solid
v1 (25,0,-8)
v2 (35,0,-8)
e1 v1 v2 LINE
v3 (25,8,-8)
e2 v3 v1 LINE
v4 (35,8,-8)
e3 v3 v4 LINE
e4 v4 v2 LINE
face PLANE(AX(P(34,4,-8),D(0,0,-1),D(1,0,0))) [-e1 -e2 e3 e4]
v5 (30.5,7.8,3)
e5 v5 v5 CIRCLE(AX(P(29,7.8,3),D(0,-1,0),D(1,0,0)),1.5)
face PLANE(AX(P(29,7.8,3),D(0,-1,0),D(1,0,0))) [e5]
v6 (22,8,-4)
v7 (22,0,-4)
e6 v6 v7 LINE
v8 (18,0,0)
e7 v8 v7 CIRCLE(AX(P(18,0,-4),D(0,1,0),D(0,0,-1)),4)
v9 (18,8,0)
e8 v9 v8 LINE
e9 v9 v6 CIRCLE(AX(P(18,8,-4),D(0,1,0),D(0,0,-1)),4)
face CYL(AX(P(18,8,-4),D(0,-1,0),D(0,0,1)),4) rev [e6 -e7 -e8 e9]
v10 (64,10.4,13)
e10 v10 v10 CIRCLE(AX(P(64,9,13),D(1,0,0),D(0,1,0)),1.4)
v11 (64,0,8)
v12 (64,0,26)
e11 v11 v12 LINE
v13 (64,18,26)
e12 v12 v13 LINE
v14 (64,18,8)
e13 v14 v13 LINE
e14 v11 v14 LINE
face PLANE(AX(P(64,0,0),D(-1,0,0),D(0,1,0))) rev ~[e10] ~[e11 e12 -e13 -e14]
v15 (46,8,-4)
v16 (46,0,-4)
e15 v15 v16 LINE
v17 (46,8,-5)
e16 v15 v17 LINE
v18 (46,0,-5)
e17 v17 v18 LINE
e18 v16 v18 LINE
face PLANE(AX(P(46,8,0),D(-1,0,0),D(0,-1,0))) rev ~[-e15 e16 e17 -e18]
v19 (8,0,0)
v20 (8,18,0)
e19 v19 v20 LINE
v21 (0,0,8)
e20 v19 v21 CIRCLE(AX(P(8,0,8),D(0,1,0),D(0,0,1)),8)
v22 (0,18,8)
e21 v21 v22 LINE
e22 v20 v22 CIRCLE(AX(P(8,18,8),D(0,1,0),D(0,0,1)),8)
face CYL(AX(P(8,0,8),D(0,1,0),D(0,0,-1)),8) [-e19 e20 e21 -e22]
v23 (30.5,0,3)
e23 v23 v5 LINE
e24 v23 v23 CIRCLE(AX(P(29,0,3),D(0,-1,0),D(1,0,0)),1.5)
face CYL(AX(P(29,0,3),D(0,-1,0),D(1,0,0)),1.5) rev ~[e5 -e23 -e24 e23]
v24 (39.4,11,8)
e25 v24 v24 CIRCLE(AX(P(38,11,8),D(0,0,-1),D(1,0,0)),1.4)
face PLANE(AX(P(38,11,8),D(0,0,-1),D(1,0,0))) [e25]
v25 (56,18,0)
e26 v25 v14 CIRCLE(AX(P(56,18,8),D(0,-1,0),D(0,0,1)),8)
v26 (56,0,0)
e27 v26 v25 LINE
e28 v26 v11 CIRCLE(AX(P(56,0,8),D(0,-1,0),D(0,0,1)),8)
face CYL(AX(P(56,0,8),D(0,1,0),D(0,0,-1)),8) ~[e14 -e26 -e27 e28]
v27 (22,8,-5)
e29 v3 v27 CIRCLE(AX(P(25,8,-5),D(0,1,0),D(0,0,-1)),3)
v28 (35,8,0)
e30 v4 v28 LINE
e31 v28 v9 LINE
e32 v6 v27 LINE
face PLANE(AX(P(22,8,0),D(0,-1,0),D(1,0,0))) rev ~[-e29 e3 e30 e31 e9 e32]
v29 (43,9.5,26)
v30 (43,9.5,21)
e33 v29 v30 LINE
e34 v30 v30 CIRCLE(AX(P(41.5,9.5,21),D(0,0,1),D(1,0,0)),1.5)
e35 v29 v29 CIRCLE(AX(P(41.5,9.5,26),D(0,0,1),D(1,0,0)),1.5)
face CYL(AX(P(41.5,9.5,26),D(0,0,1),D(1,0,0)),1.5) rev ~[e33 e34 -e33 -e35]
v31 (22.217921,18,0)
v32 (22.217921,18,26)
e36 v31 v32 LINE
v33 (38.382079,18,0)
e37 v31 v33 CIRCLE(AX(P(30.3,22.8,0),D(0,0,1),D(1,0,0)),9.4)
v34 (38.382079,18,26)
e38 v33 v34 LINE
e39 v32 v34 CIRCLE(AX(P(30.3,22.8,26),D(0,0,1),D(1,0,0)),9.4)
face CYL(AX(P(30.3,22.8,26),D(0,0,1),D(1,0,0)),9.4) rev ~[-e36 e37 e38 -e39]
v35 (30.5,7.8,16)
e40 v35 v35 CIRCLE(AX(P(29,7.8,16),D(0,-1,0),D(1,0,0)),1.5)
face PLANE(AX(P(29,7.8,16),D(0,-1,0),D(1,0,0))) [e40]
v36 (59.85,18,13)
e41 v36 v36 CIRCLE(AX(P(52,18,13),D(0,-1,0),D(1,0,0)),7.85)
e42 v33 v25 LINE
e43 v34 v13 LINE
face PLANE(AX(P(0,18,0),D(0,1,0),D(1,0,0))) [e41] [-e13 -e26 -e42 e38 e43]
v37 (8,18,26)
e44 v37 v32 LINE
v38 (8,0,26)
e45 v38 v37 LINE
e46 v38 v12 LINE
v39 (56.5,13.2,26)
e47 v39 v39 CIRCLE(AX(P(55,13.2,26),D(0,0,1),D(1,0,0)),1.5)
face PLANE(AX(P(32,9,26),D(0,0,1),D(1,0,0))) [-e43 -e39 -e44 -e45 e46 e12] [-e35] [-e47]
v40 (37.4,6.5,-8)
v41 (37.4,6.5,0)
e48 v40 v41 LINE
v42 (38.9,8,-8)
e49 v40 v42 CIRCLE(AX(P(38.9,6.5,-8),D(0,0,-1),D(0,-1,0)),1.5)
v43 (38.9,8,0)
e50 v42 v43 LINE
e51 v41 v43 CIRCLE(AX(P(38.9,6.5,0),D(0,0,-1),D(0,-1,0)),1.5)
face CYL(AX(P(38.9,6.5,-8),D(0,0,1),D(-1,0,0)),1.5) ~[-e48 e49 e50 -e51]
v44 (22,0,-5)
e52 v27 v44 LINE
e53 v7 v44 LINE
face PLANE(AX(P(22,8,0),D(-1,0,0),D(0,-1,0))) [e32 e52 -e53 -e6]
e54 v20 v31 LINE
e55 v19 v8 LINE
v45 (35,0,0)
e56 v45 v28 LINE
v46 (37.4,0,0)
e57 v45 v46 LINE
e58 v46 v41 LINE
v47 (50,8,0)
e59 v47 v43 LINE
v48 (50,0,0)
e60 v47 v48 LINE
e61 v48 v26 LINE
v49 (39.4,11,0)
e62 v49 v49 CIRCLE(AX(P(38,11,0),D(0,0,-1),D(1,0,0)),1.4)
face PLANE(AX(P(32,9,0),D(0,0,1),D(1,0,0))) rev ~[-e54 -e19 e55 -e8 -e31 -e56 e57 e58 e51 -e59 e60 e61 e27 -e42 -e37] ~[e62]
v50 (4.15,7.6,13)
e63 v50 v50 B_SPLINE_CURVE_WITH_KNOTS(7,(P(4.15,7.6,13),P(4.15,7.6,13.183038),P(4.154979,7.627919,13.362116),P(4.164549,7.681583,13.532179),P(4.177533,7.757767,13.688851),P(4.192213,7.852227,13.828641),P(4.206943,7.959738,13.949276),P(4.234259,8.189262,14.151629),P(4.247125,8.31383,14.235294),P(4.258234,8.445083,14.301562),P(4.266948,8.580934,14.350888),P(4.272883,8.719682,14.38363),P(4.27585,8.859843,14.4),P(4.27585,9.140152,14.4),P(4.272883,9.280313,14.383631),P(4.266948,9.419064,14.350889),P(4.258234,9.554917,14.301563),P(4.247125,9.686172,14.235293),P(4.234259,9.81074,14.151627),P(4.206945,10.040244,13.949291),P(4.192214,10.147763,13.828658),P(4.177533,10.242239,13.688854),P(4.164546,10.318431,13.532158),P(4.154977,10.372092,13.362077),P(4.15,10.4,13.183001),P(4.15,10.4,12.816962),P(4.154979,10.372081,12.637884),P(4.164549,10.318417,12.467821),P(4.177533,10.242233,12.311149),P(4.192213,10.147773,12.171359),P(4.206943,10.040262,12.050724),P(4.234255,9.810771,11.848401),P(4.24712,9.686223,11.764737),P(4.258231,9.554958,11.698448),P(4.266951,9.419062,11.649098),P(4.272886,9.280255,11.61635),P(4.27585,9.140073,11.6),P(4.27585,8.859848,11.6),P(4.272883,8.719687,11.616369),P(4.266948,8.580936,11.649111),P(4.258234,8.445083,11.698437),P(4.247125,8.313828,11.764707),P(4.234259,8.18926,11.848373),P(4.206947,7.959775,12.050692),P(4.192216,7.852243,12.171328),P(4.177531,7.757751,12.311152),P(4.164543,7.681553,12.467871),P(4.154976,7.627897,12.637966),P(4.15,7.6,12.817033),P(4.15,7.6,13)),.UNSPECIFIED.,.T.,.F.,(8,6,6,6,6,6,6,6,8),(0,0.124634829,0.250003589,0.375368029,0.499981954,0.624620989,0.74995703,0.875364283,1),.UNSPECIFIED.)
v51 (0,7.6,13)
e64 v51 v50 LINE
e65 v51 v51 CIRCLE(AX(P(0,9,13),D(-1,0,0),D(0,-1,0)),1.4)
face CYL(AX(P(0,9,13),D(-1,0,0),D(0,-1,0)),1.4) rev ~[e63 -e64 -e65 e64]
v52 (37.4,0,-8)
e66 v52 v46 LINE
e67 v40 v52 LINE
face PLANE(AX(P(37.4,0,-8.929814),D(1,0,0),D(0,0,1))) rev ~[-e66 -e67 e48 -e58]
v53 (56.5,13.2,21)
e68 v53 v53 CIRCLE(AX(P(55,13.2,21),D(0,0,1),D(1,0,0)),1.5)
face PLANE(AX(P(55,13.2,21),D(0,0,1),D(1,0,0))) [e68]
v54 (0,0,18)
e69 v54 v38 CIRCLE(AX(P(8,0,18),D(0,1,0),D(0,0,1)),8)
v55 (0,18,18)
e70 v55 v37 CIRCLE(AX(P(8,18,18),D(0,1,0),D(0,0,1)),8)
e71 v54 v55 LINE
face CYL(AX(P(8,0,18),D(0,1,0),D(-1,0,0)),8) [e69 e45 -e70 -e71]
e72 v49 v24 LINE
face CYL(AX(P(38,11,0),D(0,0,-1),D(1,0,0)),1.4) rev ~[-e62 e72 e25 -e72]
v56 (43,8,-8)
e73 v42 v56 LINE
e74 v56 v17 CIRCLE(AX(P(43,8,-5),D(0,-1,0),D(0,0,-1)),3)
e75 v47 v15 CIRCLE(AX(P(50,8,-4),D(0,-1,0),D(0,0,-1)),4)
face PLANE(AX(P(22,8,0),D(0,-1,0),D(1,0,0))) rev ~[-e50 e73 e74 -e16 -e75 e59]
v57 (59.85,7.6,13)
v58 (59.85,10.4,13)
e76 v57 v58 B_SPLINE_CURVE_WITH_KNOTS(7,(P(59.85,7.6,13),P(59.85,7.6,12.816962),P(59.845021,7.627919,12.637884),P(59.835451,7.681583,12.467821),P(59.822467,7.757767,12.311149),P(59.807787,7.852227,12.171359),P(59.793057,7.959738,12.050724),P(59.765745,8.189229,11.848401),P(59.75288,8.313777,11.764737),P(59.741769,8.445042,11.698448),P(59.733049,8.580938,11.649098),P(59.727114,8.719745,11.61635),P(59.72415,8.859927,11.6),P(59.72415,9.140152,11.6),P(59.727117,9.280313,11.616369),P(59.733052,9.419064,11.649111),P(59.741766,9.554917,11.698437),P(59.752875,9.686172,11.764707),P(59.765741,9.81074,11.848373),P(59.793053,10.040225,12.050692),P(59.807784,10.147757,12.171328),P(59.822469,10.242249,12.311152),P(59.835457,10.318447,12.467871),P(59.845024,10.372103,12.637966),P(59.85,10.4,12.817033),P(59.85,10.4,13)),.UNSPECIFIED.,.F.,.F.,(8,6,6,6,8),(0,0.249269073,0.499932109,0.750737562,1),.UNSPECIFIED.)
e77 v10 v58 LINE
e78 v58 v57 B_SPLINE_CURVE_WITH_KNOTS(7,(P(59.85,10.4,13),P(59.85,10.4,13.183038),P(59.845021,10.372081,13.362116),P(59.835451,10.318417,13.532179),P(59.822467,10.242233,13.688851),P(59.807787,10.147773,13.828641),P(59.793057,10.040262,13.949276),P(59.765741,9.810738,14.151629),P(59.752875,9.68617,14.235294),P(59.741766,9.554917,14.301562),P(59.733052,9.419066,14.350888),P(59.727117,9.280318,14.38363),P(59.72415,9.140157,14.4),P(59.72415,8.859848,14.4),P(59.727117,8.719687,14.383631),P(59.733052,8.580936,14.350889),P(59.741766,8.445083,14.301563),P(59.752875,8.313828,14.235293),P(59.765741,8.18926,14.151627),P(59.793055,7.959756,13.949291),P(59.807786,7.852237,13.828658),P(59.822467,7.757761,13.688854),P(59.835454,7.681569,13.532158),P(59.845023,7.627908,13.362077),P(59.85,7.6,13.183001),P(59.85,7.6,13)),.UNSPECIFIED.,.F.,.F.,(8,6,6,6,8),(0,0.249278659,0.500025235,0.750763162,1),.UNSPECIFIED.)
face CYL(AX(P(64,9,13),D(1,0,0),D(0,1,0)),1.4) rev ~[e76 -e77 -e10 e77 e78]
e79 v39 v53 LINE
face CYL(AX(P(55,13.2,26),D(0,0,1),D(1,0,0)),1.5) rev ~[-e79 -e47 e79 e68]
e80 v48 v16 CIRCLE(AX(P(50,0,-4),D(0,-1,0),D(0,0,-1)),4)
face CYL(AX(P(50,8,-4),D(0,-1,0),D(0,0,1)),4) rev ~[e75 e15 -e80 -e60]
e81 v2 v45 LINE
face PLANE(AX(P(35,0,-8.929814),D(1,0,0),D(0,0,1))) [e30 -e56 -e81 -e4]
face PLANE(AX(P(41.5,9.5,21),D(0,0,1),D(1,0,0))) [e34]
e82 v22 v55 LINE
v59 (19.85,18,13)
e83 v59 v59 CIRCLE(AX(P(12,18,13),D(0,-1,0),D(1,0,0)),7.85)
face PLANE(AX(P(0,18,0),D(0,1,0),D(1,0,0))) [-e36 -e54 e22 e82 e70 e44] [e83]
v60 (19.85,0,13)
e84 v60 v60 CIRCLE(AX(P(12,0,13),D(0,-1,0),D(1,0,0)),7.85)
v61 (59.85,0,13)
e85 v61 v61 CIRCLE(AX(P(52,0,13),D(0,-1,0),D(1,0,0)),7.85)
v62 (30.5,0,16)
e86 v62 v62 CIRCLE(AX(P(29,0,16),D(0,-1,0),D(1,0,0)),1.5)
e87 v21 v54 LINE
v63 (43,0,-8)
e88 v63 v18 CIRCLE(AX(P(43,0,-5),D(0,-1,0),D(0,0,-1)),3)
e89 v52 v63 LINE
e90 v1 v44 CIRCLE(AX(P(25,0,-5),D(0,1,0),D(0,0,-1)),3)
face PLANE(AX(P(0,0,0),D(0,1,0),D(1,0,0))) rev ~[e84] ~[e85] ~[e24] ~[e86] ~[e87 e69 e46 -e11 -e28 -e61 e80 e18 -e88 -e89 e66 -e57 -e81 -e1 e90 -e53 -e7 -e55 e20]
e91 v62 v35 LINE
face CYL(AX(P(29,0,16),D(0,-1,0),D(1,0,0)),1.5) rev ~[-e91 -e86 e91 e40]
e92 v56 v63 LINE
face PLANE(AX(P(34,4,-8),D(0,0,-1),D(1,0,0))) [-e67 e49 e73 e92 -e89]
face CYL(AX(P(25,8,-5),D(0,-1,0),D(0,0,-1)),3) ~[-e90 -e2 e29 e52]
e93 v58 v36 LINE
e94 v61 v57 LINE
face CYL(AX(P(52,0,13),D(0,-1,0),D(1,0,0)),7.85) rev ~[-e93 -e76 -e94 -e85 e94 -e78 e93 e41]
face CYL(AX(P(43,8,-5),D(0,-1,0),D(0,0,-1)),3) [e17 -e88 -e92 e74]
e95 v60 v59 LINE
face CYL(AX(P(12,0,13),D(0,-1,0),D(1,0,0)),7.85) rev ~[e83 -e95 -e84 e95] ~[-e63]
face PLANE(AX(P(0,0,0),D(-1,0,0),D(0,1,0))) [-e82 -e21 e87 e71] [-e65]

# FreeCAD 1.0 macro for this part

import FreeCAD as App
import Part
import Sketcher

V = App.Vector
Q = App.Units.Quantity


def edges_at(feature, points):
    """Names of the edges that pass closest to the given points."""
    edges = feature.Shape.Edges
    near = lambda p: min(range(len(edges)), key=lambda i: edges[i].distToShape(Part.Vertex(*p))[0])
    return sorted({f"Edge{near(p) + 1}" for p in points})

doc = App.newDocument("Part")
params = doc.addObject("Spreadsheet::Sheet", "Params")
for row, (alias, value) in enumerate([
    ("sketch1_width", "64 mm"),
    ("sketch1_height", "18 mm"),
    ("pad1_length", "26 mm"),
    ("sketch2_diameter", "15.7 mm"),
    ("sketch3_width", "24 mm"),
    ("sketch3_height", "8 mm"),
    ("pad2_length", "8 mm"),
    ("sketch4_diameter", "18.8 mm"),
    ("sketch5_diameter", "3 mm"),
    ("pocket3_length", "5 mm"),
    ("sketch6_diameter", "2.8 mm"),
    ("pocket4_length", "5 mm"),
    ("sketch7_diameter", "2.8 mm"),
    ("pocket5_length", "5 mm"),
    ("sketch8_diameter", "2.8 mm"),
    ("pocket6_length", "8 mm"),
    ("sketch9_diameter", "3 mm"),
    ("pocket7_length", "7.8 mm"),
    ("sketch10_width", "2.4 mm"),
    ("pocket8_length", "8 mm"),
    ("fillet_radius", "4 mm"),
    ("fillet2_radius", "3 mm"),
    ("fillet3_radius", "1.5 mm"),
    ("fillet4_radius", "8 mm"),
], start=1):
    params.set(f"A{row}", alias)
    params.set(f"B{row}", "=" + value)
    params.setAlias(f"B{row}", alias)

body = doc.addObject("PartDesign::Body", "Body")

sketch1 = body.newObject("Sketcher::SketchObject", "Sketch")
sketch1.AttachmentSupport = (doc.getObject("XY_Plane"), [""])
sketch1.MapMode = "FlatFace"
sketch1.addGeometry([
    Part.LineSegment(V(0, 18, 0), V(0, 0, 0)),
    Part.LineSegment(V(0, 0, 0), V(64, 0, 0)),
    Part.LineSegment(V(64, 0, 0), V(64, 18, 0)),
    Part.LineSegment(V(64, 18, 0), V(0, 18, 0)),
], False)
sketch1.addConstraint([
    Sketcher.Constraint("Coincident", 0, 2, 1, 1),
    Sketcher.Constraint("Coincident", 1, 2, 2, 1),
    Sketcher.Constraint("Coincident", 2, 2, 3, 1),
    Sketcher.Constraint("Coincident", 3, 2, 0, 1),
    Sketcher.Constraint("Vertical", 0),
    Sketcher.Constraint("Horizontal", 1),
    Sketcher.Constraint("Vertical", 2),
    Sketcher.Constraint("Horizontal", 3),
    Sketcher.Constraint("Coincident", 0, 2, -1, 1),
    Sketcher.Constraint("DistanceX", 1, 1, 1, 2, Q("64 mm")),
    Sketcher.Constraint("DistanceY", 0, 2, 0, 1, Q("18 mm")),
])
sketch1.setExpression("Constraints[9]", "Params.sketch1_width")
sketch1.setExpression("Constraints[10]", "Params.sketch1_height")
pad1 = body.newObject("PartDesign::Pad", "Pad")
pad1.Profile = sketch1
pad1.setExpression("Length", "Params.pad1_length")

sketch2 = body.newObject("Sketcher::SketchObject", "Sketch001")
sketch2.AttachmentSupport = (doc.getObject("XZ_Plane"), [""])
sketch2.MapMode = "FlatFace"
sketch2.addGeometry([
    Part.Circle(V(12, 13, 0), V(0, 0, 1), 8),
    Part.Circle(V(52, 13, 0), V(0, 0, 1), 8),
], False)
sketch2.addConstraint([
    Sketcher.Constraint("Equal", 0, 1),
    Sketcher.Constraint("Horizontal", 0, 3, 1, 3),
    Sketcher.Constraint("Diameter", 0, Q("15.7 mm")),
    Sketcher.Constraint("DistanceX", -1, 1, 0, 3, Q("12 mm")),
    Sketcher.Constraint("DistanceY", -1, 1, 0, 3, Q("13 mm")),
    Sketcher.Constraint("DistanceX", -1, 1, 1, 3, Q("52 mm")),
])
sketch2.setExpression("Constraints[2]", "Params.sketch2_diameter")
pocket1 = body.newObject("PartDesign::Pocket", "Pocket")
pocket1.Profile = sketch2
pocket1.Type = "ThroughAll"

sketch3 = body.newObject("Sketcher::SketchObject", "Sketch002")
sketch3.AttachmentSupport = (doc.getObject("XY_Plane"), [""])
sketch3.MapMode = "FlatFace"
sketch3.addGeometry([
    Part.LineSegment(V(22, 0, 0), V(22, 8, 0)),
    Part.LineSegment(V(22, 8, 0), V(46, 8, 0)),
    Part.LineSegment(V(46, 8, 0), V(46, 0, 0)),
    Part.LineSegment(V(46, 0, 0), V(22, 0, 0)),
], False)
sketch3.addConstraint([
    Sketcher.Constraint("Coincident", 0, 2, 1, 1),
    Sketcher.Constraint("Coincident", 1, 2, 2, 1),
    Sketcher.Constraint("Coincident", 2, 2, 3, 1),
    Sketcher.Constraint("Coincident", 3, 2, 0, 1),
    Sketcher.Constraint("Vertical", 0),
    Sketcher.Constraint("Horizontal", 1),
    Sketcher.Constraint("Vertical", 2),
    Sketcher.Constraint("Horizontal", 3),
    Sketcher.Constraint("PointOnObject", 2, 2, -1),
    Sketcher.Constraint("DistanceX", 1, 1, 1, 2, Q("24 mm")),
    Sketcher.Constraint("DistanceY", 0, 1, 0, 2, Q("8 mm")),
    Sketcher.Constraint("DistanceX", -1, 1, 0, 2, Q("22 mm")),
])
sketch3.setExpression("Constraints[9]", "Params.sketch3_width")
sketch3.setExpression("Constraints[10]", "Params.sketch3_height")
pad2 = body.newObject("PartDesign::Pad", "Pad001")
pad2.Profile = sketch3
pad2.setExpression("Length", "Params.pad2_length")
pad2.Reversed = True

sketch4 = body.newObject("Sketcher::SketchObject", "Sketch003")
sketch4.AttachmentSupport = (doc.getObject("XY_Plane"), [""])
sketch4.MapMode = "FlatFace"
sketch4.AttachmentOffset = App.Placement(V(0, 0, 26), App.Rotation())
sketch4.addGeometry(Part.Circle(V(30, 23, 0), V(0, 0, 1), 9), False)
sketch4.addConstraint([
    Sketcher.Constraint("Diameter", 0, Q("18.8 mm")),
    Sketcher.Constraint("DistanceX", -1, 1, 0, 3, Q("30.3 mm")),
    Sketcher.Constraint("DistanceY", -1, 1, 0, 3, Q("22.8 mm")),
])
sketch4.setExpression("Constraints[0]", "Params.sketch4_diameter")
pocket2 = body.newObject("PartDesign::Pocket", "Pocket001")
pocket2.Profile = sketch4
pocket2.Type = "ThroughAll"

sketch5 = body.newObject("Sketcher::SketchObject", "Sketch004")
sketch5.AttachmentSupport = (doc.getObject("XY_Plane"), [""])
sketch5.MapMode = "FlatFace"
sketch5.AttachmentOffset = App.Placement(V(0, 0, 26), App.Rotation())
sketch5.addGeometry([
    Part.Circle(V(41.5, 9.5, 0), V(0, 0, 1), 1.5),
    Part.Circle(V(55, 13.2, 0), V(0, 0, 1), 1.5),
], False)
sketch5.addConstraint([
    Sketcher.Constraint("Equal", 0, 1),
    Sketcher.Constraint("Diameter", 0, Q("3 mm")),
    Sketcher.Constraint("DistanceX", -1, 1, 1, 3, Q("55 mm")),
    Sketcher.Constraint("DistanceX", -1, 1, 0, 3, Q("41.5 mm")),
    Sketcher.Constraint("DistanceY", -1, 1, 0, 3, Q("9.5 mm")),
    Sketcher.Constraint("DistanceY", -1, 1, 1, 3, Q("13.2 mm")),
])
sketch5.setExpression("Constraints[1]", "Params.sketch5_diameter")
pocket3 = body.newObject("PartDesign::Pocket", "Pocket002")
pocket3.Profile = sketch5
pocket3.setExpression("Length", "Params.pocket3_length")

sketch6 = body.newObject("Sketcher::SketchObject", "Sketch005")
sketch6.AttachmentSupport = (doc.getObject("YZ_Plane"), [""])
sketch6.MapMode = "FlatFace"
sketch6.AttachmentOffset = App.Placement(V(0, 0, 64), App.Rotation())
sketch6.addGeometry(Part.Circle(V(9, 13, 0), V(0, 0, 1), 1.4), False)
sketch6.addConstraint([
    Sketcher.Constraint("Diameter", 0, Q("2.8 mm")),
    Sketcher.Constraint("DistanceX", -1, 1, 0, 3, Q("9 mm")),
    Sketcher.Constraint("DistanceY", -1, 1, 0, 3, Q("13 mm")),
])
sketch6.setExpression("Constraints[0]", "Params.sketch6_diameter")
pocket4 = body.newObject("PartDesign::Pocket", "Pocket003")
pocket4.Profile = sketch6
pocket4.setExpression("Length", "Params.pocket4_length")

sketch7 = body.newObject("Sketcher::SketchObject", "Sketch006")
sketch7.AttachmentSupport = (doc.getObject("YZ_Plane"), [""])
sketch7.MapMode = "FlatFace"
sketch7.addGeometry(Part.Circle(V(9, 13, 0), V(0, 0, 1), 1.4), False)
sketch7.addConstraint([
    Sketcher.Constraint("Diameter", 0, Q("2.8 mm")),
    Sketcher.Constraint("DistanceX", -1, 1, 0, 3, Q("9 mm")),
    Sketcher.Constraint("DistanceY", -1, 1, 0, 3, Q("13 mm")),
])
sketch7.setExpression("Constraints[0]", "Params.sketch7_diameter")
pocket5 = body.newObject("PartDesign::Pocket", "Pocket004")
pocket5.Profile = sketch7
pocket5.setExpression("Length", "Params.pocket5_length")
pocket5.Reversed = True

sketch8 = body.newObject("Sketcher::SketchObject", "Sketch007")
sketch8.AttachmentSupport = (doc.getObject("XY_Plane"), [""])
sketch8.MapMode = "FlatFace"
sketch8.addGeometry(Part.Circle(V(38, 11, 0), V(0, 0, 1), 1.4), False)
sketch8.addConstraint([
    Sketcher.Constraint("Diameter", 0, Q("2.8 mm")),
    Sketcher.Constraint("DistanceX", -1, 1, 0, 3, Q("38 mm")),
    Sketcher.Constraint("DistanceY", -1, 1, 0, 3, Q("11 mm")),
])
sketch8.setExpression("Constraints[0]", "Params.sketch8_diameter")
pocket6 = body.newObject("PartDesign::Pocket", "Pocket005")
pocket6.Profile = sketch8
pocket6.setExpression("Length", "Params.pocket6_length")
pocket6.Reversed = True

sketch9 = body.newObject("Sketcher::SketchObject", "Sketch008")
sketch9.AttachmentSupport = (doc.getObject("XZ_Plane"), [""])
sketch9.MapMode = "FlatFace"
sketch9.addGeometry([
    Part.Circle(V(29, 3, 0), V(0, 0, 1), 1.5),
    Part.Circle(V(29, 16, 0), V(0, 0, 1), 1.5),
], False)
sketch9.addConstraint([
    Sketcher.Constraint("Equal", 0, 1),
    Sketcher.Constraint("Vertical", 0, 3, 1, 3),
    Sketcher.Constraint("Diameter", 0, Q("3 mm")),
    Sketcher.Constraint("DistanceX", -1, 1, 0, 3, Q("29 mm")),
    Sketcher.Constraint("DistanceY", -1, 1, 0, 3, Q("3 mm")),
    Sketcher.Constraint("DistanceY", -1, 1, 1, 3, Q("16 mm")),
])
sketch9.setExpression("Constraints[2]", "Params.sketch9_diameter")
pocket7 = body.newObject("PartDesign::Pocket", "Pocket006")
pocket7.Profile = sketch9
pocket7.setExpression("Length", "Params.pocket7_length")

sketch10 = body.newObject("Sketcher::SketchObject", "Sketch009")
sketch10.AttachmentSupport = (doc.getObject("XZ_Plane"), [""])
sketch10.MapMode = "FlatFace"
sketch10.addGeometry([
    Part.LineSegment(V(35, 0, 0), V(35, -8.9, 0)),
    Part.LineSegment(V(35, -8.9, 0), V(37.4, -8.9, 0)),
    Part.LineSegment(V(37.4, -8.9, 0), V(37.4, 0, 0)),
    Part.LineSegment(V(37.4, 0, 0), V(35, 0, 0)),
], False)
sketch10.addConstraint([
    Sketcher.Constraint("Coincident", 0, 2, 1, 1),
    Sketcher.Constraint("Coincident", 1, 2, 2, 1),
    Sketcher.Constraint("Coincident", 2, 2, 3, 1),
    Sketcher.Constraint("Coincident", 3, 2, 0, 1),
    Sketcher.Constraint("Vertical", 0),
    Sketcher.Constraint("Horizontal", 1),
    Sketcher.Constraint("Vertical", 2),
    Sketcher.Constraint("Horizontal", 3),
    Sketcher.Constraint("PointOnObject", 2, 2, -1),
    Sketcher.Constraint("DistanceX", 1, 1, 1, 2, Q("2.4 mm")),
    Sketcher.Constraint("DistanceX", -1, 1, 0, 2, Q("35 mm")),
    Sketcher.Constraint("DistanceY", 0, 2, 0, 1, Q("8.929814 mm")),
])
sketch10.setExpression("Constraints[9]", "Params.sketch10_width")
pocket8 = body.newObject("PartDesign::Pocket", "Pocket007")
pocket8.Profile = sketch10
pocket8.setExpression("Length", "Params.pocket8_length")
doc.recompute()

fillet = body.newObject("PartDesign::Fillet", "Fillet")
fillet.Base = (pocket8, edges_at(pocket8, [(22, 4, 0), (46, 4, 0)]))
fillet.setExpression("Radius", "Params.fillet_radius")
doc.recompute()

fillet2 = body.newObject("PartDesign::Fillet", "Fillet001")
fillet2.Base = (fillet, edges_at(fillet, [(46, 4, -8), (22, 4, -8)]))
fillet2.setExpression("Radius", "Params.fillet2_radius")
doc.recompute()

fillet3 = body.newObject("PartDesign::Fillet", "Fillet002")
fillet3.Base = (fillet2, edges_at(fillet2, [(37.4, 8, -4)]))
fillet3.setExpression("Radius", "Params.fillet3_radius")
doc.recompute()

fillet4 = body.newObject("PartDesign::Fillet", "Fillet003")
fillet4.Base = (fillet3, edges_at(fillet3, [(0, 9, 26), (0, 9, 0), (64, 9, 0)]))
fillet4.setExpression("Radius", "Params.fillet4_radius")

doc.recompute()
